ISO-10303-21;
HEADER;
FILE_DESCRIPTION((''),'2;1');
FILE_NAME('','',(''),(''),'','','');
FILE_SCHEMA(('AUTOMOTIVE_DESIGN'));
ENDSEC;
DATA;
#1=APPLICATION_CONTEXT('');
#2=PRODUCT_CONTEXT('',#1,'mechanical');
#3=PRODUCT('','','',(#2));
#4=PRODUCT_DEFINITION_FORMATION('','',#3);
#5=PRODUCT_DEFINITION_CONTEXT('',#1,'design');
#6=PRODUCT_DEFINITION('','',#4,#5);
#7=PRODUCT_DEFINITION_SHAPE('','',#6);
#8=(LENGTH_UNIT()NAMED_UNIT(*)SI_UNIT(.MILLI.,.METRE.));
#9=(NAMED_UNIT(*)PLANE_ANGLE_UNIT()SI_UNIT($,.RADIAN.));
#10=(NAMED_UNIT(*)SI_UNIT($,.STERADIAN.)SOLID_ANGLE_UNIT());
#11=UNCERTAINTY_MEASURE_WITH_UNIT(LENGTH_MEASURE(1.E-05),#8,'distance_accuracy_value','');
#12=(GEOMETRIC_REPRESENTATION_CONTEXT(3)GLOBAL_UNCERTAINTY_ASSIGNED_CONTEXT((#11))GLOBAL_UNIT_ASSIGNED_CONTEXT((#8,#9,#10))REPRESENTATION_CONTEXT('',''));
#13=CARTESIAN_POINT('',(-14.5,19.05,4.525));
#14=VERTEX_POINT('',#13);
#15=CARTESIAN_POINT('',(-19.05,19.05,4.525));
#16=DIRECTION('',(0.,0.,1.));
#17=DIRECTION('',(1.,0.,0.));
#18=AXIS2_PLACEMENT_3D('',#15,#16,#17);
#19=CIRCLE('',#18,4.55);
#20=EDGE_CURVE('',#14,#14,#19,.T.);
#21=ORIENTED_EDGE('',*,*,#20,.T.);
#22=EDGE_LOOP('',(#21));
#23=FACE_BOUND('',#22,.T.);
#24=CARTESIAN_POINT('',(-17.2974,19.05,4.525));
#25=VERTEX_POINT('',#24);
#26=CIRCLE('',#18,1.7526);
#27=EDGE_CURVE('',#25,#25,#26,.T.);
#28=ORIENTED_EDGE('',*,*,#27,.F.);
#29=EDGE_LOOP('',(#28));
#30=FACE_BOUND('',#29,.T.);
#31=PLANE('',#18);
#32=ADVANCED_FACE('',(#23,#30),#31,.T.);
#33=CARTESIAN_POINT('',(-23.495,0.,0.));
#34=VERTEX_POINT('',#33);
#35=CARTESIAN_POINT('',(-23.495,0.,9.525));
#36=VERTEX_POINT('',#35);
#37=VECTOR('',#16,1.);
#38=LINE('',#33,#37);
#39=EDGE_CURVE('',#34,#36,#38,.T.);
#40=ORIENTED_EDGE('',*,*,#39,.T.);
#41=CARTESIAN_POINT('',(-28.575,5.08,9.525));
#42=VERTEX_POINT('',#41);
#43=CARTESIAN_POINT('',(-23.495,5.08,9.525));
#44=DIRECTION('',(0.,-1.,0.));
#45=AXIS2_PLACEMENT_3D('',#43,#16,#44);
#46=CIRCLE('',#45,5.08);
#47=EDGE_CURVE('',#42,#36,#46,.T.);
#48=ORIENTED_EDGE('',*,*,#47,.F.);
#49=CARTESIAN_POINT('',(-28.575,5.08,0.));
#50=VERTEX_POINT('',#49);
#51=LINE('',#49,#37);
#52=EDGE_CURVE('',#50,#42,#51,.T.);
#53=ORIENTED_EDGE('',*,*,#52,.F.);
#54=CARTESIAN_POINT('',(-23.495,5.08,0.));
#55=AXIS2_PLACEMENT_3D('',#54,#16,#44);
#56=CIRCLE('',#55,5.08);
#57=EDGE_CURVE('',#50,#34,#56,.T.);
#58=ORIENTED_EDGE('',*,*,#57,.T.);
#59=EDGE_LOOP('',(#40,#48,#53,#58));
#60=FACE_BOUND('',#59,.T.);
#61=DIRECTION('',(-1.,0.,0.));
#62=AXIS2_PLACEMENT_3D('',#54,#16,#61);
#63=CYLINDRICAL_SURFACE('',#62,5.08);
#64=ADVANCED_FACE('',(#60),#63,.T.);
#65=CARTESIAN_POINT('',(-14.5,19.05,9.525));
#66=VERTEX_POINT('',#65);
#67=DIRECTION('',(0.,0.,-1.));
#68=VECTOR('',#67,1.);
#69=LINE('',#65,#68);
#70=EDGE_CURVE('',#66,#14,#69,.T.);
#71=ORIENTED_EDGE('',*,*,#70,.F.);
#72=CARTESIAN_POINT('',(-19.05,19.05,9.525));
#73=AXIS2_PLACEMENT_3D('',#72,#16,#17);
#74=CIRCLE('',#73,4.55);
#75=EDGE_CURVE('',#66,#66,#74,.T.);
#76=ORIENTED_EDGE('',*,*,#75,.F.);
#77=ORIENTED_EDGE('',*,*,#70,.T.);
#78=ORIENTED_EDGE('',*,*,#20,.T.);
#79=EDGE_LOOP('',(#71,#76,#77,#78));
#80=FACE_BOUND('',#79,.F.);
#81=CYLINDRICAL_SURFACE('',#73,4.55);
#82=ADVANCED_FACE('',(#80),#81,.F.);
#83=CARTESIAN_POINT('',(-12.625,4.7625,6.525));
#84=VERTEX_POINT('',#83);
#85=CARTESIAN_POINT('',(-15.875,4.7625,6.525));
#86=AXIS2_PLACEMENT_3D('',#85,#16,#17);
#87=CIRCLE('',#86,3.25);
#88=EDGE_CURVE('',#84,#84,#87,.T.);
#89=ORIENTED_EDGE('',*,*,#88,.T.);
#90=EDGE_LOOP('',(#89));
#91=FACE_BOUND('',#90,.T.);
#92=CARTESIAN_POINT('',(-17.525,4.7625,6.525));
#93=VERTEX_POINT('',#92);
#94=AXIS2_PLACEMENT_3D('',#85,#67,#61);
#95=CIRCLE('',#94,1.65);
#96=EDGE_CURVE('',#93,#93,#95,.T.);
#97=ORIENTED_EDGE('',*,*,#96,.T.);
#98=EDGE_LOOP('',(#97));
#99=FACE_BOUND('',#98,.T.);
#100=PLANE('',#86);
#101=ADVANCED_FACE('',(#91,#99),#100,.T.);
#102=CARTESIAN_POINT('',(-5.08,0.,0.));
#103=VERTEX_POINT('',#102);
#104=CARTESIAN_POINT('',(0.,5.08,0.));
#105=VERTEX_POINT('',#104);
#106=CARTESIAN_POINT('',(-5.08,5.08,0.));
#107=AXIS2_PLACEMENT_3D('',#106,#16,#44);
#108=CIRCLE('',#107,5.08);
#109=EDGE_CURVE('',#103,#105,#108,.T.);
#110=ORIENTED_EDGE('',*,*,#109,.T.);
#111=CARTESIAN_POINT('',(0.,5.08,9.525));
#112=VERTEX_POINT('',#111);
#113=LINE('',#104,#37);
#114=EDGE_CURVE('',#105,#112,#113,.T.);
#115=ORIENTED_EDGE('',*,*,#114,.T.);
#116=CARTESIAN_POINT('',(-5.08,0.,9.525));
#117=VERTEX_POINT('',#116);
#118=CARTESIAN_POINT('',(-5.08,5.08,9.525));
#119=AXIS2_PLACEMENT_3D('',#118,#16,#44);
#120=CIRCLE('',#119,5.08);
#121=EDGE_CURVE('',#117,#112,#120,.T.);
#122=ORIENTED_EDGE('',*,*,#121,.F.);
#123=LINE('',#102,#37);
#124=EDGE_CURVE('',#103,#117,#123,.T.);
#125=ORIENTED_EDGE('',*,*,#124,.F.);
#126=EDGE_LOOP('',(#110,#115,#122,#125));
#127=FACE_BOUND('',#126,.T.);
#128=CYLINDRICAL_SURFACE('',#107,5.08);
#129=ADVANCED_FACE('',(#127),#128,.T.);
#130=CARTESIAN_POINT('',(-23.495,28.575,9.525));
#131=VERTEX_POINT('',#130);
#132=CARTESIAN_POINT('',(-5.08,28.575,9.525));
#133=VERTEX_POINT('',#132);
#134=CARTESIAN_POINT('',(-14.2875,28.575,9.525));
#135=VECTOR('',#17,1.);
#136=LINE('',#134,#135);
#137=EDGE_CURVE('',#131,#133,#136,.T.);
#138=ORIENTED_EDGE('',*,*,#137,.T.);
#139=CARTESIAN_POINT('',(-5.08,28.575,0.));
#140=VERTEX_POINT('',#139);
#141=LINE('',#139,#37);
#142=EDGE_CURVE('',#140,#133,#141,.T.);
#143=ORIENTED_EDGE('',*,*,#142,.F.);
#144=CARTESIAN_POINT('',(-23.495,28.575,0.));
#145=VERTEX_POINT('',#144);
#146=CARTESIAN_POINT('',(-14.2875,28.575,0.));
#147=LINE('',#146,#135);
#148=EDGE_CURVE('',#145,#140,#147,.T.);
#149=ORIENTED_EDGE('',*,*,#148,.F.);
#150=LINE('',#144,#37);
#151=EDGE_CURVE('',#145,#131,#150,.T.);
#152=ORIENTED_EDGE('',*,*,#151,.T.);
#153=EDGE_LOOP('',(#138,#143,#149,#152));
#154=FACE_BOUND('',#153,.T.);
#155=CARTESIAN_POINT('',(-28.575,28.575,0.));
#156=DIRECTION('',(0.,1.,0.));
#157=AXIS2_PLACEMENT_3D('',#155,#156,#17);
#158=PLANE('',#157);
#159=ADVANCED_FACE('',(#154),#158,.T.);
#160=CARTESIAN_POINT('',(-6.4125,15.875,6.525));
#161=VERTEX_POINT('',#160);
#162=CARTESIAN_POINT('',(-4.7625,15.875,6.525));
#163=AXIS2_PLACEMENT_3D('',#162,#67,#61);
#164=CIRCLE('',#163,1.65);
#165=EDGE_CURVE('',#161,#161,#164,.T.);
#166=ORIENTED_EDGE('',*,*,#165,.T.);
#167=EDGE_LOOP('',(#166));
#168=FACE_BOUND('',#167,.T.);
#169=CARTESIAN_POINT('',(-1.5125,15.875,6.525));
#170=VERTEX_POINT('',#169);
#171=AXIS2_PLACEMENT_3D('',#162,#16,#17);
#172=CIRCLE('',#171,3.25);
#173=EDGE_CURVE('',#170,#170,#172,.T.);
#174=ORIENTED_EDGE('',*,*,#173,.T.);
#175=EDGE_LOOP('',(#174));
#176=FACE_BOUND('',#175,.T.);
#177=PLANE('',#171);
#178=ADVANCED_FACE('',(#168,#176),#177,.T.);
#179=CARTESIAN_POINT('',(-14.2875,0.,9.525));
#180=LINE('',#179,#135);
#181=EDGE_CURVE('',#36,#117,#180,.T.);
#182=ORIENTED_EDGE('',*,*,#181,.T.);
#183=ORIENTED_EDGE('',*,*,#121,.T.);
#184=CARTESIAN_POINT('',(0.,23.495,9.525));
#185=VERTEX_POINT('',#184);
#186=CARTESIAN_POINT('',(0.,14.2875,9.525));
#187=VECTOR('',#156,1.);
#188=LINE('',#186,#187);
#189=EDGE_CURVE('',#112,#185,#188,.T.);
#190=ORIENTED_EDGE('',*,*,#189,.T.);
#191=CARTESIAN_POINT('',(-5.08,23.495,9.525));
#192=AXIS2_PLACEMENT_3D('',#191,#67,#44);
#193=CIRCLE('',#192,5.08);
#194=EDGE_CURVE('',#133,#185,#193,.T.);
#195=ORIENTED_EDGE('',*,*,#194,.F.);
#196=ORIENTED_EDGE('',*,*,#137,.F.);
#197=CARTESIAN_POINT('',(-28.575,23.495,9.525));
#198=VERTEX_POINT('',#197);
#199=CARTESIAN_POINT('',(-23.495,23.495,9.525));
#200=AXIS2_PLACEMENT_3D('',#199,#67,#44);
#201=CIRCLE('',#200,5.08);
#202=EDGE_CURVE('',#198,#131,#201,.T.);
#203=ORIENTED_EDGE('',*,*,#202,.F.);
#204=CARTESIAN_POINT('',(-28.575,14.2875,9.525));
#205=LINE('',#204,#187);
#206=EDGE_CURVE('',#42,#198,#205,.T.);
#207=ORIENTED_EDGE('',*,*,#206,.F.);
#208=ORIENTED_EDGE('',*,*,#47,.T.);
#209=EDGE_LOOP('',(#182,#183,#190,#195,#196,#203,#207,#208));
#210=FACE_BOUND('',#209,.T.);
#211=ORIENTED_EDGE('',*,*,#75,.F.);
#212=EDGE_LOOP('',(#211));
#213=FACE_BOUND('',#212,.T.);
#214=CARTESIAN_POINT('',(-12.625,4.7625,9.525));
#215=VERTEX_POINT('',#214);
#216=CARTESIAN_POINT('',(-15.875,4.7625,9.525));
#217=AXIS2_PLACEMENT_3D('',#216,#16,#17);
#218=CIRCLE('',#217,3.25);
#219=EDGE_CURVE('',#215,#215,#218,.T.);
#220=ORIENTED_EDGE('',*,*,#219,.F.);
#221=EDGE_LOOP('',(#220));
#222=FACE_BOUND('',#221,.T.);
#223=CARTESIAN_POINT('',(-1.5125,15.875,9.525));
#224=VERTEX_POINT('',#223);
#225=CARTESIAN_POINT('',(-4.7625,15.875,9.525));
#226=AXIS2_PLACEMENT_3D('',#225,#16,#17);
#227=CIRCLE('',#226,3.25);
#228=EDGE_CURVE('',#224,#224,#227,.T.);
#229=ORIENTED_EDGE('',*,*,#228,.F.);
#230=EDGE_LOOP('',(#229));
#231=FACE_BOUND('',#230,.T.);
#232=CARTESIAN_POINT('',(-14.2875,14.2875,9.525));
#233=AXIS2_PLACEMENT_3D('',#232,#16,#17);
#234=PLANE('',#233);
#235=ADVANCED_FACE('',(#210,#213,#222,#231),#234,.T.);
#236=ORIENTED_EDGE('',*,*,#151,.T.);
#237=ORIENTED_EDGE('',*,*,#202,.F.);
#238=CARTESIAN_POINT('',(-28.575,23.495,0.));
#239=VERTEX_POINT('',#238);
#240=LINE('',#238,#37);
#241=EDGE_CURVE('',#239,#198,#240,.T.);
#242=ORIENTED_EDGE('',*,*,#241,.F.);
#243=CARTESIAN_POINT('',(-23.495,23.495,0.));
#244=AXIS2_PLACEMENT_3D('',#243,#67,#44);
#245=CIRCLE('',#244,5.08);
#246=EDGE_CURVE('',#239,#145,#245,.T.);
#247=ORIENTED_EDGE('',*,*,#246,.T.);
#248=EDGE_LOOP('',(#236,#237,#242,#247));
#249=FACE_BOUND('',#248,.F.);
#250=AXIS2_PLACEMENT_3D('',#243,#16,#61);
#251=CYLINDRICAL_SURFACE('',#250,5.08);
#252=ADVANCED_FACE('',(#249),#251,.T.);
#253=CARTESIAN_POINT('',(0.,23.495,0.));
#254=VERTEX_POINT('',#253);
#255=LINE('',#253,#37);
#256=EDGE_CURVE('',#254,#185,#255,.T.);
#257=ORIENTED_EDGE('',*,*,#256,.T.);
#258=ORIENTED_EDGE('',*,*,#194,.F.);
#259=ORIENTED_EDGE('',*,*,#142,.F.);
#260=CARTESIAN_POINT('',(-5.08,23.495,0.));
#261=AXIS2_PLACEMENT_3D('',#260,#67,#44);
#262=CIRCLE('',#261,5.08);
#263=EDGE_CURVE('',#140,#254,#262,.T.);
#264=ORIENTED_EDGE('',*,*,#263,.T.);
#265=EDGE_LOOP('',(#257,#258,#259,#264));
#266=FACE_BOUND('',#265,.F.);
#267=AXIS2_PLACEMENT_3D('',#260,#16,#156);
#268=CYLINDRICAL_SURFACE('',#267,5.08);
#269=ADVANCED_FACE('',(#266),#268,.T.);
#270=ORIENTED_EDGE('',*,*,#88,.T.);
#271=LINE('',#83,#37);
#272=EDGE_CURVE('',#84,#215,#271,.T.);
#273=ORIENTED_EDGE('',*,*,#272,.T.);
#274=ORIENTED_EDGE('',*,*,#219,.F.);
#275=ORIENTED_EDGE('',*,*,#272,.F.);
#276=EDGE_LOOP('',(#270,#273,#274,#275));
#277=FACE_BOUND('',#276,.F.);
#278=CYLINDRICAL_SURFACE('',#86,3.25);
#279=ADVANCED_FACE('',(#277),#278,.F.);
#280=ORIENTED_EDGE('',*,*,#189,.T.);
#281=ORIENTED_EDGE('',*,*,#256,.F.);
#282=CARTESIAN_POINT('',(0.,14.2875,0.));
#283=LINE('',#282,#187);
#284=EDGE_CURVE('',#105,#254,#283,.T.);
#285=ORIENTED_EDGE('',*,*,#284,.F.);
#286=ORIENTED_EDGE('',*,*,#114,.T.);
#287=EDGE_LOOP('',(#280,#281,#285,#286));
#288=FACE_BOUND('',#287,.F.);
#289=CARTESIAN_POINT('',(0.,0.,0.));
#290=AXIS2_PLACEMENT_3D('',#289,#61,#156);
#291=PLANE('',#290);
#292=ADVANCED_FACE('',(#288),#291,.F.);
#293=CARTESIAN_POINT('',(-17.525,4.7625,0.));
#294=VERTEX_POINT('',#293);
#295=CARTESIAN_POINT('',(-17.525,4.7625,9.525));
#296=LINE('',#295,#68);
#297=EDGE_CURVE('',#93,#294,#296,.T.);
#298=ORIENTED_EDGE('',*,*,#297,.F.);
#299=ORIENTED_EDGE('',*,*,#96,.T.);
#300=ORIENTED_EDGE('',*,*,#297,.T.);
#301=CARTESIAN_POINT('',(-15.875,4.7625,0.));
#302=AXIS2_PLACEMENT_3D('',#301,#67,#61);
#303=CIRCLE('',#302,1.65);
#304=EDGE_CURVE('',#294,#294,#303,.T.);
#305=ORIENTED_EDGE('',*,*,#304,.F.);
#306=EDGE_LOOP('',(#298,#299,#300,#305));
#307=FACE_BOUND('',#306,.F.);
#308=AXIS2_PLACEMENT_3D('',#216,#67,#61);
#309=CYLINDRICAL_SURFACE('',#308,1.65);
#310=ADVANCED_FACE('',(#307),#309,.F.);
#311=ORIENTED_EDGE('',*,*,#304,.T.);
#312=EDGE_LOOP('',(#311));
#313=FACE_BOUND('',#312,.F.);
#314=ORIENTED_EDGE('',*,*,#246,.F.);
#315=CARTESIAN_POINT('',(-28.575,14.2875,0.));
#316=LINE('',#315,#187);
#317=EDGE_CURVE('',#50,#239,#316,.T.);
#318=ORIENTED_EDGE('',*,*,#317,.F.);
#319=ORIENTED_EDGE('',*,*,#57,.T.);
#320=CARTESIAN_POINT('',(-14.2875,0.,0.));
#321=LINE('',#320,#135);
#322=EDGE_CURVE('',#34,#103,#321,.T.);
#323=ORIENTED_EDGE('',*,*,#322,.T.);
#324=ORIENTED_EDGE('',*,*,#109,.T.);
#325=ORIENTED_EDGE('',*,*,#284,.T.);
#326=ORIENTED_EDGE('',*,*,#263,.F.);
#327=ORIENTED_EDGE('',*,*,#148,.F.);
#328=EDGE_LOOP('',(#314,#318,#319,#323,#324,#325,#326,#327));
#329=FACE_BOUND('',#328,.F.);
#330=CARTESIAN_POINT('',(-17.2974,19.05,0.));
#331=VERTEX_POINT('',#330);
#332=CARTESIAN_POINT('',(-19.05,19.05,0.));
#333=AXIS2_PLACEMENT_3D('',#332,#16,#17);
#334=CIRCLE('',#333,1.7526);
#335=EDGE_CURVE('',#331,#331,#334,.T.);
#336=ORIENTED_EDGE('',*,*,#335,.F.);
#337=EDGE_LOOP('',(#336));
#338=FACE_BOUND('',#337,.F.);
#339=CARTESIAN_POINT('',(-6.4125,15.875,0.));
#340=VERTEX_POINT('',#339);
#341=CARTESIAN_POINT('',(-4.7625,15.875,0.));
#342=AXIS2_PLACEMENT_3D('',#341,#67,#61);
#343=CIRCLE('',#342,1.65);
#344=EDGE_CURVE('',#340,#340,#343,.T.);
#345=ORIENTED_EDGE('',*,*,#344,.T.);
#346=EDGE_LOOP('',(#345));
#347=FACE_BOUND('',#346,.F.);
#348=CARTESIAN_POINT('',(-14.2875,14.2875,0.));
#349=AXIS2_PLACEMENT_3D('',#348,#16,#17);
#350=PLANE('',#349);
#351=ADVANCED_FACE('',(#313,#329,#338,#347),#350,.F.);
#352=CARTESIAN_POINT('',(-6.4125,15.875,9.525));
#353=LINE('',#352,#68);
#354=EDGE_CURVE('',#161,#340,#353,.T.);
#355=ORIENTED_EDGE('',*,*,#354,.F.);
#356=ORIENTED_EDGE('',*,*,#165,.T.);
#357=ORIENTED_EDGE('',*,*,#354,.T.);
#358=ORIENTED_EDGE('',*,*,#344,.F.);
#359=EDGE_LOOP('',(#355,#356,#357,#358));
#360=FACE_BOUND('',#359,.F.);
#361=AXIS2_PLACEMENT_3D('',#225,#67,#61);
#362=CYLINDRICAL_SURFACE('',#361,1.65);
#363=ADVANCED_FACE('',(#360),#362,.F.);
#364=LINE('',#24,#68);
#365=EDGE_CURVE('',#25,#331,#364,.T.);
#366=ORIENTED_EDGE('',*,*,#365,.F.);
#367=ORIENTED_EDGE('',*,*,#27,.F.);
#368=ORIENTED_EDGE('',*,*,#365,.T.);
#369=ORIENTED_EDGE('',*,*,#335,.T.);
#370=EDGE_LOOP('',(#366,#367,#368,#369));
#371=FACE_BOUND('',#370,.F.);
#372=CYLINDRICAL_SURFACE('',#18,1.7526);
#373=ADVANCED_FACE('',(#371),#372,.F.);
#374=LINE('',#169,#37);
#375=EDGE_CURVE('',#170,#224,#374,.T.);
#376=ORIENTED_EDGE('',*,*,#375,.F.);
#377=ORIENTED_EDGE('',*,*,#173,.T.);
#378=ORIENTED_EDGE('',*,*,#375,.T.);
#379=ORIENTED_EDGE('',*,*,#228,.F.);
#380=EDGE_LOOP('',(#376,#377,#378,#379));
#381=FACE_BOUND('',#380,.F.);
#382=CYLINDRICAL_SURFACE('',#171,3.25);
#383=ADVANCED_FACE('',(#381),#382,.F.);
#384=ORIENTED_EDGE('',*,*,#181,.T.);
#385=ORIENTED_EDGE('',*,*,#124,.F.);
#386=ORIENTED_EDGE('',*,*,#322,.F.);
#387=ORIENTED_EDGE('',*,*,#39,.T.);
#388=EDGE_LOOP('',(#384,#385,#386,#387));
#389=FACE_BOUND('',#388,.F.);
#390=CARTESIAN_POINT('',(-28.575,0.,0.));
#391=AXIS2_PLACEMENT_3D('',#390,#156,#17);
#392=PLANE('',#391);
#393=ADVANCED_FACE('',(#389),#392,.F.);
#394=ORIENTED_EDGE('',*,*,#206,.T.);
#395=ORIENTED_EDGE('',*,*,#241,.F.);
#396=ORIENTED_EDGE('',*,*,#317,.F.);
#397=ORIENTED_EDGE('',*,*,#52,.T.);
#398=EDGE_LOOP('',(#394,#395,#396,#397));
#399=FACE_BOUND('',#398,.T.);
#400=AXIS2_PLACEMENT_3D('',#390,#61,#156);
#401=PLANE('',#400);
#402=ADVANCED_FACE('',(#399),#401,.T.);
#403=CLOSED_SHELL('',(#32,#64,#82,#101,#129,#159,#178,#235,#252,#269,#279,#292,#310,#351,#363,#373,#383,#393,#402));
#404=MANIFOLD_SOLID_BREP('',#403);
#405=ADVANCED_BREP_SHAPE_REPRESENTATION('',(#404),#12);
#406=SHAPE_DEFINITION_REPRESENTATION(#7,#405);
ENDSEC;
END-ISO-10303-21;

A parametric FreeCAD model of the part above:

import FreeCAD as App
import Part
import Sketcher
from FreeCAD import Vector
Q = App.Units.Quantity


def edges_at(feature, points):
    """Names of the edges that pass closest to the given points."""
    edges = feature.Shape.Edges
    near = lambda p: min(range(len(edges)), key=lambda i: edges[i].distToShape(Part.Vertex(*p))[0])
    return sorted({f"Edge{near(p) + 1}" for p in points})

doc = App.newDocument("Part")
body = doc.addObject("PartDesign::Body", "Body")

# Sketch on XY plane
sketch1 = body.newObject("Sketcher::SketchObject", "Sketch")
sketch1.AttachmentSupport = (doc.getObject("XY_Plane"), [""])
sketch1.MapMode = "FlatFace"
sketch1.addGeometry([
    Part.LineSegment(Vector(-29, 29, 0), Vector(-29, 0, 0)),
    Part.LineSegment(Vector(-29, 0, 0), Vector(0, 0, 0)),
    Part.LineSegment(Vector(0, 0, 0), Vector(0, 29, 0)),
    Part.LineSegment(Vector(0, 29, 0), Vector(-29, 29, 0)),
], False)
sketch1.addConstraint([
    Sketcher.Constraint("Coincident", 0, 2, 1, 1),
    Sketcher.Constraint("Coincident", 1, 2, 2, 1),
    Sketcher.Constraint("Coincident", 2, 2, 3, 1),
    Sketcher.Constraint("Coincident", 3, 2, 0, 1),
    Sketcher.Constraint("Vertical", 0),
    Sketcher.Constraint("Horizontal", 1),
    Sketcher.Constraint("Vertical", 2),
    Sketcher.Constraint("Horizontal", 3),
    Sketcher.Constraint("Coincident", 1, 2, -1, 1),
    Sketcher.Constraint("Equal", 3, 0),
    Sketcher.Constraint("DistanceX", 1, 1, 1, 2, Q("1.125 in")),
])
pad1 = body.newObject("PartDesign::Pad", "Pad")
pad1.Profile = sketch1
pad1.Length = Q("0.375 in")

# Sketch on XY plane
sketch2 = body.newObject("Sketcher::SketchObject", "Sketch001")
sketch2.AttachmentSupport = (doc.getObject("XY_Plane"), [""])
sketch2.MapMode = "FlatFace"
sketch2.AttachmentOffset = App.Placement(Vector(0, 0, 0.375 * 25.4), App.Rotation())
sketch2.addGeometry([
    Part.Circle(Vector(-15.9, 4.8, 0), Vector(0, 0, 1), 1.6),
    Part.Circle(Vector(-4.8, 15.9, 0), Vector(0, 0, 1), 1.6),
], False)
sketch2.addConstraint([
    Sketcher.Constraint("Equal", 0, 1),
    Sketcher.Constraint("Diameter", 0, 3.3),
    Sketcher.Constraint("DistanceX", 0, 3, -1, 1, Q("0.625 in")),
    Sketcher.Constraint("DistanceY", -1, 1, 0, 3, Q("0.1875 in")),
    Sketcher.Constraint("DistanceX", 1, 3, -1, 1, Q("0.1875 in")),
    Sketcher.Constraint("DistanceY", -1, 1, 1, 3, Q("0.625 in")),
])
doc.recompute()
hole = body.newObject("PartDesign::Hole", "Hole")
hole.Profile = sketch2
hole.ThreadType = "None"
hole.Diameter = 3.3
hole.DepthType = "ThroughAll"
hole.HoleCutType = "Counterbore"
hole.HoleCutDiameter = 6.5
hole.HoleCutDepth = 3

# Sketch on XY plane
sketch3 = body.newObject("Sketcher::SketchObject", "Sketch002")
sketch3.AttachmentSupport = (doc.getObject("XY_Plane"), [""])
sketch3.MapMode = "FlatFace"
sketch3.AttachmentOffset = App.Placement(Vector(0, 0, 0.375 * 25.4), App.Rotation())
sketch3.addGeometry(Part.Circle(Vector(-19.1, 19.1, 0), Vector(0, 0, 1), 4.5), False)
sketch3.addConstraint([
    Sketcher.Constraint("Diameter", 0, 9.1),
    Sketcher.Constraint("DistanceX", 0, 3, -1, 1, Q("0.75 in")),
    Sketcher.Constraint("DistanceY", -1, 1, 0, 3, Q("0.75 in")),
])
pocket1 = body.newObject("PartDesign::Pocket", "Pocket")
pocket1.Profile = sketch3
pocket1.Length = 5

# Sketch on XY plane
sketch4 = body.newObject("Sketcher::SketchObject", "Sketch003")
sketch4.AttachmentSupport = (doc.getObject("XY_Plane"), [""])
sketch4.MapMode = "FlatFace"
sketch4.AttachmentOffset = App.Placement(Vector(0, 0, 4.525), App.Rotation())
sketch4.addGeometry(Part.Circle(Vector(-19.1, 19.1, 0), Vector(0, 0, 1), 1.8), False)
sketch4.addConstraint([
    Sketcher.Constraint("Diameter", 0, Q("0.138 in")),
    Sketcher.Constraint("DistanceX", 0, 3, -1, 1, Q("0.75 in")),
    Sketcher.Constraint("DistanceY", -1, 1, 0, 3, Q("0.75 in")),
])
pocket2 = body.newObject("PartDesign::Pocket", "Pocket001")
pocket2.Profile = sketch4
pocket2.Type = "ThroughAll"
doc.recompute()

fillet = body.newObject("PartDesign::Fillet", "Fillet")
fillet.Base = (pocket2, edges_at(pocket2, [
    (0, 0, 4.763),
    (-28.575, 0, 4.763),
    (-28.575, 28.575, 4.763),
    (0, 28.575, 4.763),
]))
fillet.Radius = Q("0.2 in")

doc.recompute()
